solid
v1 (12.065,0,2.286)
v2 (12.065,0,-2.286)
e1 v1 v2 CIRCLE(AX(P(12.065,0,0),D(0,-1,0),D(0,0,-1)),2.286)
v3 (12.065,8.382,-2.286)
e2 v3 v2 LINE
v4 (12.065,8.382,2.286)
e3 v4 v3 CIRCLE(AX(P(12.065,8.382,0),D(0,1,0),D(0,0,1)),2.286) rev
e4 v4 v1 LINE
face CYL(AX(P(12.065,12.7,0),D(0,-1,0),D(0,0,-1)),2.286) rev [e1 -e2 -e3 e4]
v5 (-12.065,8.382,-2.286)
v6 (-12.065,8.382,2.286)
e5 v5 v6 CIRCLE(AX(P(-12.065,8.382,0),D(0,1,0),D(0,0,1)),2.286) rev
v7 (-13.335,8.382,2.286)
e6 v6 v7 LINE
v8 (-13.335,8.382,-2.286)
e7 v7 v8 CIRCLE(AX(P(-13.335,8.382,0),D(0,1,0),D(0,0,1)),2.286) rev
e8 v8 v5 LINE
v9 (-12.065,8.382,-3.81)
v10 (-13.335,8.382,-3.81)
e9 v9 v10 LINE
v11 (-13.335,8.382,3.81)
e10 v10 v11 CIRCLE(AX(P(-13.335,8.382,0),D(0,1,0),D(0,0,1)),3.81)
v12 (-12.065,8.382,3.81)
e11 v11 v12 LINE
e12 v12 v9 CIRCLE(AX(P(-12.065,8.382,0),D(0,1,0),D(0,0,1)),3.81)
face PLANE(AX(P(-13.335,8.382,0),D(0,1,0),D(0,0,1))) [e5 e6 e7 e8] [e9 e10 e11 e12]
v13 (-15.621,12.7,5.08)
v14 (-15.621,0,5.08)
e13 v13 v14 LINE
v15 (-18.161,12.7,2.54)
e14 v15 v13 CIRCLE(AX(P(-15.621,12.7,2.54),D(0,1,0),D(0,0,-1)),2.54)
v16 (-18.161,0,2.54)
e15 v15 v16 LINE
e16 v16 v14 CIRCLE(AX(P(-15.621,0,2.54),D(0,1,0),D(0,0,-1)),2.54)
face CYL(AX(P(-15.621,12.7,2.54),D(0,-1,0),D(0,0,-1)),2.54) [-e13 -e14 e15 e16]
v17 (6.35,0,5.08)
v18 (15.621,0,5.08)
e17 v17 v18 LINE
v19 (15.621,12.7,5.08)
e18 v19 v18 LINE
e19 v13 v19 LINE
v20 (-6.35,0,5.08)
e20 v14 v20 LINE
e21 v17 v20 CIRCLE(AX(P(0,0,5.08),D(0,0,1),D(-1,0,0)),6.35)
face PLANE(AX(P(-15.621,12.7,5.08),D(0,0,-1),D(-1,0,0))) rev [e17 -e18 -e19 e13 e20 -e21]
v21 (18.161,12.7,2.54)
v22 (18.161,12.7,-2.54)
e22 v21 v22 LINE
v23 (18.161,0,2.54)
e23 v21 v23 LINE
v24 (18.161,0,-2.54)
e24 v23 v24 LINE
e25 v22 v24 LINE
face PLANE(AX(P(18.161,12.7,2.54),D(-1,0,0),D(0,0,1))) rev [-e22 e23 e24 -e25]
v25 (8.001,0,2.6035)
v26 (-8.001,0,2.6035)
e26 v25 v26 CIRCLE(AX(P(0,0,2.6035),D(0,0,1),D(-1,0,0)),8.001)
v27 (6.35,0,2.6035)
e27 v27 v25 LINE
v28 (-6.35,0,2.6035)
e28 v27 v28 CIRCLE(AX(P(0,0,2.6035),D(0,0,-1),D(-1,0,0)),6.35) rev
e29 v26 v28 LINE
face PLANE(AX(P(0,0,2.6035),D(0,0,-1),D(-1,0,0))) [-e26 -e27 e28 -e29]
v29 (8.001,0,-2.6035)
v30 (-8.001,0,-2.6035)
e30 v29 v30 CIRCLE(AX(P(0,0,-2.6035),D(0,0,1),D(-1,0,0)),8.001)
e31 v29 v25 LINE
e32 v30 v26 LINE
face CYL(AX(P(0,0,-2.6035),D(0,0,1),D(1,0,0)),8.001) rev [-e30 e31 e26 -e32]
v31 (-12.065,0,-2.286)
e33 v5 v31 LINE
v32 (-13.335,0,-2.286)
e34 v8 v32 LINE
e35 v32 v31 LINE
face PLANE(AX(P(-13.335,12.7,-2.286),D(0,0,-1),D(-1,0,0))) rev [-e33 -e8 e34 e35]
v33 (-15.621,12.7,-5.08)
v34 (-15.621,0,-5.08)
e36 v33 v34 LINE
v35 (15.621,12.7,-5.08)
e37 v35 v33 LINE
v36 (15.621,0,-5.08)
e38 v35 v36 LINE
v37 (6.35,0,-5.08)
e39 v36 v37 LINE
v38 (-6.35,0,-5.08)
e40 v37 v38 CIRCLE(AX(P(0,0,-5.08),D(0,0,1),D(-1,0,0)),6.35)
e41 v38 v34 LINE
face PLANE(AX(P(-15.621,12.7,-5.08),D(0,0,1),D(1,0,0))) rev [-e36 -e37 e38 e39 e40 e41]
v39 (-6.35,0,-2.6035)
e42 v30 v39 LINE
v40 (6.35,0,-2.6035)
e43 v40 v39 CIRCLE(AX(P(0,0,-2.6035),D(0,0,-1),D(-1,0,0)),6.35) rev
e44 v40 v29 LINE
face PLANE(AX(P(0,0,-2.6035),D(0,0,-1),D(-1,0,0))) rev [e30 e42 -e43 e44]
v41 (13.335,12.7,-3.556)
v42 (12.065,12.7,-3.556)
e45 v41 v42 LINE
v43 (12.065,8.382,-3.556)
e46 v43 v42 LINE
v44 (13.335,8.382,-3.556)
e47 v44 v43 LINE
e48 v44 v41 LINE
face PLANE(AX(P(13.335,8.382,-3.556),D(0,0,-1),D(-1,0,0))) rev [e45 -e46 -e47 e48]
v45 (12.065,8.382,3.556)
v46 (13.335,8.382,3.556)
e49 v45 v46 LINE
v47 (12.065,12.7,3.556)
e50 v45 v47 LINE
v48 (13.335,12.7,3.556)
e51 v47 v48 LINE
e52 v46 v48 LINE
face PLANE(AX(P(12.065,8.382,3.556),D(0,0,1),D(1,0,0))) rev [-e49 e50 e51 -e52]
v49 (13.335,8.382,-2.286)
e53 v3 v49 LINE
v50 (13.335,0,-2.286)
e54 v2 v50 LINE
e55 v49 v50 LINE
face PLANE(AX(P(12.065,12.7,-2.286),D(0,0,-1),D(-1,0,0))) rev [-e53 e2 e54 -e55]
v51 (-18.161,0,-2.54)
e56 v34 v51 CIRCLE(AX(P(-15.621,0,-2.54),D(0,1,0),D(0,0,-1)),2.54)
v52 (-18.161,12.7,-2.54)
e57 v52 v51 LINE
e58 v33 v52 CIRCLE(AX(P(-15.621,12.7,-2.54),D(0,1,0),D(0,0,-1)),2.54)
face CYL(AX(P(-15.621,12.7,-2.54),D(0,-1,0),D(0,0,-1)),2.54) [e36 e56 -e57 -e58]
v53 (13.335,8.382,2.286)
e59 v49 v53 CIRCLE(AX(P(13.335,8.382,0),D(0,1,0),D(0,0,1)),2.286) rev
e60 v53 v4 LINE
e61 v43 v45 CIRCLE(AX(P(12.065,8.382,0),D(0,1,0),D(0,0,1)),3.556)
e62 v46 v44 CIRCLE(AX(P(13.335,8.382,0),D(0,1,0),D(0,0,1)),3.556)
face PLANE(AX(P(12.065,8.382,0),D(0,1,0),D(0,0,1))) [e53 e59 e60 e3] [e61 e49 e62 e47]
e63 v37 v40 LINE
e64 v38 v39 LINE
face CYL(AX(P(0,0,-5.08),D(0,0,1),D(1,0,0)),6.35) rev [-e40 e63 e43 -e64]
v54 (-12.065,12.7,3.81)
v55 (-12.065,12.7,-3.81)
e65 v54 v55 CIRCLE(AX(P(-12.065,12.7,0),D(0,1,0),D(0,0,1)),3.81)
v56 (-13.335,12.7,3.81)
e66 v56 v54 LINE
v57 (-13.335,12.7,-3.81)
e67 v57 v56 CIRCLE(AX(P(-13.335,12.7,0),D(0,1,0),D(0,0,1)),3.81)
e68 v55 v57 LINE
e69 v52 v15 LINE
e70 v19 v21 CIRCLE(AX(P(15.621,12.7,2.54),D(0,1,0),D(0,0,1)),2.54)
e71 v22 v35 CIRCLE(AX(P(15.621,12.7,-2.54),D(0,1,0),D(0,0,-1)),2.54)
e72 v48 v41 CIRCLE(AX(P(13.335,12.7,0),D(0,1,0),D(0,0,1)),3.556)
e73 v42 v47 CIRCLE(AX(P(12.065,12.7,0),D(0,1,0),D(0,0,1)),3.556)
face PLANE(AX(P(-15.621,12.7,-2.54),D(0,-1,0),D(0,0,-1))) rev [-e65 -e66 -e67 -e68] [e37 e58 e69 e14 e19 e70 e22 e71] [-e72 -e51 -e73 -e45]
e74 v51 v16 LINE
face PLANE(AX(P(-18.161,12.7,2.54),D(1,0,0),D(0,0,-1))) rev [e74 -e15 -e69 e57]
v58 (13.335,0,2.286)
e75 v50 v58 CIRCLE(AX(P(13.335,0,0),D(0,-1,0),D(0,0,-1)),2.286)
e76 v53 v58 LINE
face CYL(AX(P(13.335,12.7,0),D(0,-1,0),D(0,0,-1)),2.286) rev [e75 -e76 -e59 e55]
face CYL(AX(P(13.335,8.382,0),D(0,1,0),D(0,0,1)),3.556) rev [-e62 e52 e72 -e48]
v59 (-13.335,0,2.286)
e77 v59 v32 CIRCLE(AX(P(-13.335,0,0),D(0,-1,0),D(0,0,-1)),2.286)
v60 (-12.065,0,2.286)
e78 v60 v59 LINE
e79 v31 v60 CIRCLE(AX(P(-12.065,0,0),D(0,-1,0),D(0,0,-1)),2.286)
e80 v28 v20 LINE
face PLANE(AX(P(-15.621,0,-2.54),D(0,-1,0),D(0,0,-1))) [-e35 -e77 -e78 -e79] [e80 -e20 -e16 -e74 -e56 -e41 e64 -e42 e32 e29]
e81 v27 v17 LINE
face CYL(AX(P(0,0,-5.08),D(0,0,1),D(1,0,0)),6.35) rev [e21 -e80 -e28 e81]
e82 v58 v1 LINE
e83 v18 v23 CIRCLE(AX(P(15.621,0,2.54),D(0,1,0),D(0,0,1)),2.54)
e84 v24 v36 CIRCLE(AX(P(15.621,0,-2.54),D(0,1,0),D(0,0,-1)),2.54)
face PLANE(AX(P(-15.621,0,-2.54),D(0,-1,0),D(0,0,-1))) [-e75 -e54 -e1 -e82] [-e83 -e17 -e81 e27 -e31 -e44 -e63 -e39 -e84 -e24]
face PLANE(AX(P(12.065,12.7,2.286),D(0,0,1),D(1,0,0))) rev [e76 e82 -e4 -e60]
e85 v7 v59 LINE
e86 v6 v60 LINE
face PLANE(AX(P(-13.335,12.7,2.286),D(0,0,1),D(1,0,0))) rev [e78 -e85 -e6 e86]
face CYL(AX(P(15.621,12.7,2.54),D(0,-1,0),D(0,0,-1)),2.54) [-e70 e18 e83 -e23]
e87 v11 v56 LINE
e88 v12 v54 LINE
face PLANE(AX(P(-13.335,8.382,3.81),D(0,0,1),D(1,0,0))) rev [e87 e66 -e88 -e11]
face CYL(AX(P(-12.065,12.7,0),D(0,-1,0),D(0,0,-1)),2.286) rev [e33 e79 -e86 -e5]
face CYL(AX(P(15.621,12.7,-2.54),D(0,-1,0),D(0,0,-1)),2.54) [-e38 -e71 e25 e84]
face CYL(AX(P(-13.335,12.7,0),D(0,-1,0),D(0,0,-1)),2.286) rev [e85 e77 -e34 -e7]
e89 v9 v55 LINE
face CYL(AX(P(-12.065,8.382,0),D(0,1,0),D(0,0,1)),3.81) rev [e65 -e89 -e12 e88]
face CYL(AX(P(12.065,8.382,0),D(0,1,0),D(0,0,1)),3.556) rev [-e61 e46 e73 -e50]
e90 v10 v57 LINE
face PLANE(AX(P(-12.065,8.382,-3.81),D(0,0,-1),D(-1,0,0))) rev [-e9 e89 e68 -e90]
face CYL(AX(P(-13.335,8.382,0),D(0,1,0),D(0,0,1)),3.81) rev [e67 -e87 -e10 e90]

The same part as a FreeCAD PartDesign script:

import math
import FreeCAD as App
import Part
import Sketcher
Q = App.Units.Quantity

doc = App.newDocument("Part")
params = doc.addObject("Spreadsheet::Sheet", "Params")
for row, (alias, value) in enumerate([
    ("sketch1_radius", "0.1 in"),
    ("sketch1_height", "0.2 in"),
    ("sketch1_width", "1.23 in"),
    ("pad1_length", "0.5 in"),
    ("sketch2_radius", "0.25 in"),
    ("sketch3_radius", "0.315 in"),
    ("pocket2_length", "0.205 in"),
    ("sketch4_radius", "0.09 in"),
    ("sketch4_width", "0.05 in"),
    ("sketch5_radius", "0.15 in"),
    ("sketch5_radius2", "0.14 in"),
    ("sketch5_width", "0.05 in"),
    ("pocket4_length", "0.17 in"),
], start=1):
    params.set(f"A{row}", alias)
    params.set(f"B{row}", "=" + value)
    params.setAlias(f"B{row}", alias)

body = doc.addObject("PartDesign::Body", "Body")

# Sketch on XZ plane
sketch1 = doc.addObject("Sketcher::SketchObject", "Sketch")
body.addObject(sketch1)
sketch1.AttachmentSupport = (doc.XZ_Plane, [""])
sketch1.MapMode = "FlatFace"
sketch1.addGeometry(Part.LineSegment(App.Vector(-15.621, 5.08, 0), App.Vector(15.621, 5.08, 0)), False)
sketch1.addGeometry(Part.ArcOfCircle(Part.Circle(App.Vector(15.621, 2.54, 0), App.Vector(0, 0, 1), 2.54), math.radians(0), math.radians(90)), False)
sketch1.addGeometry(Part.LineSegment(App.Vector(18.161, 2.54, 0), App.Vector(18.161, -2.54, 0)), False)
sketch1.addGeometry(Part.ArcOfCircle(Part.Circle(App.Vector(15.621, -2.54, 0), App.Vector(0, 0, 1), 2.54), math.radians(-90), math.radians(0)), False)
sketch1.addGeometry(Part.LineSegment(App.Vector(15.621, -5.08, 0), App.Vector(-15.621, -5.08, 0)), False)
sketch1.addGeometry(Part.ArcOfCircle(Part.Circle(App.Vector(-15.621, -2.54, 0), App.Vector(0, 0, 1), 2.54), math.radians(-180), math.radians(-90)), False)
sketch1.addGeometry(Part.LineSegment(App.Vector(-18.161, -2.54, 0), App.Vector(-18.161, 2.54, 0)), False)
sketch1.addGeometry(Part.ArcOfCircle(Part.Circle(App.Vector(-15.621, 2.54, 0), App.Vector(0, 0, 1), 2.54), math.radians(90), math.radians(180)), False)
sketch1.addConstraint(Sketcher.Constraint("Tangent", 0, 2, 1, 2))
sketch1.addConstraint(Sketcher.Constraint("Tangent", 1, 1, 2, 1))
sketch1.addConstraint(Sketcher.Constraint("Tangent", 2, 2, 3, 2))
sketch1.addConstraint(Sketcher.Constraint("Tangent", 3, 1, 4, 1))
sketch1.addConstraint(Sketcher.Constraint("Tangent", 4, 2, 5, 2))
sketch1.addConstraint(Sketcher.Constraint("Tangent", 5, 1, 6, 1))
sketch1.addConstraint(Sketcher.Constraint("Tangent", 6, 2, 7, 2))
sketch1.addConstraint(Sketcher.Constraint("Tangent", 7, 1, 0, 1))
sketch1.addConstraint(Sketcher.Constraint("Horizontal", 0))
sketch1.addConstraint(Sketcher.Constraint("Vertical", 2))
sketch1.addConstraint(Sketcher.Constraint("Horizontal", 4))
sketch1.addConstraint(Sketcher.Constraint("Vertical", 6))
sketch1.addConstraint(Sketcher.Constraint("Equal", 1, 3))
sketch1.addConstraint(Sketcher.Constraint("Equal", 3, 5))
sketch1.addConstraint(Sketcher.Constraint("Equal", 5, 7))
sketch1.addConstraint(Sketcher.Constraint("Symmetric", 1, 3, 5, 3, -1, 1))
sketch1.addConstraint(Sketcher.Constraint("Radius", 1, Q("0.1 in")))
sketch1.addConstraint(Sketcher.Constraint("DistanceY", 2, 2, 2, 1, Q("0.2 in")))
sketch1.addConstraint(Sketcher.Constraint("DistanceX", 0, 1, 0, 2, Q("1.23 in")))
sketch1.setExpression("Constraints[16]", "Params.sketch1_radius")
sketch1.setExpression("Constraints[17]", "Params.sketch1_height")
sketch1.setExpression("Constraints[18]", "Params.sketch1_width")
pad1 = doc.addObject("PartDesign::Pad", "Pad")
body.addObject(pad1)
pad1.Profile = sketch1
pad1.setExpression("Length", "Params.pad1_length")
pad1.Reversed = True

# Sketch on XY plane
sketch2 = doc.addObject("Sketcher::SketchObject", "Sketch001")
body.addObject(sketch2)
sketch2.AttachmentSupport = (doc.XY_Plane, [""])
sketch2.MapMode = "FlatFace"
sketch2.AttachmentOffset = App.Placement(App.Vector(0, 0, 0.2 * 25.4), App.Rotation())
sketch2.addGeometry(Part.LineSegment(App.Vector(-6.35, 0, 0), App.Vector(6.35, 0, 0)), False)
sketch2.addGeometry(Part.ArcOfCircle(Part.Circle(App.Vector(0, 0, 0), App.Vector(0, 0, 1), 6.35), math.radians(0), math.radians(180)), False)
sketch2.addConstraint(Sketcher.Constraint("Coincident", 0, 1, 1, 2))
sketch2.addConstraint(Sketcher.Constraint("Coincident", 1, 1, 0, 2))
sketch2.addConstraint(Sketcher.Constraint("Horizontal", 0))
sketch2.addConstraint(Sketcher.Constraint("Coincident", 1, 3, -1, 1))
sketch2.addConstraint(Sketcher.Constraint("PointOnObject", 0, 1, -1))
sketch2.addConstraint(Sketcher.Constraint("Radius", 1, Q("0.25 in")))
sketch2.setExpression("Constraints[5]", "Params.sketch2_radius")
pocket1 = doc.addObject("PartDesign::Pocket", "Pocket")
body.addObject(pocket1)
pocket1.Profile = sketch2
pocket1.Type = "ThroughAll"

# Sketch on XY plane
sketch3 = doc.addObject("Sketcher::SketchObject", "Sketch002")
body.addObject(sketch3)
sketch3.AttachmentSupport = (doc.XY_Plane, [""])
sketch3.MapMode = "FlatFace"
sketch3.addGeometry(Part.LineSegment(App.Vector(-8.001, 0, 0), App.Vector(8.001, 0, 0)), False)
sketch3.addGeometry(Part.ArcOfCircle(Part.Circle(App.Vector(0, 0, 0), App.Vector(0, 0, 1), 8.001), math.radians(0), math.radians(180)), False)
sketch3.addConstraint(Sketcher.Constraint("Coincident", 0, 1, 1, 2))
sketch3.addConstraint(Sketcher.Constraint("Coincident", 1, 1, 0, 2))
sketch3.addConstraint(Sketcher.Constraint("Horizontal", 0))
sketch3.addConstraint(Sketcher.Constraint("Coincident", 1, 3, -1, 1))
sketch3.addConstraint(Sketcher.Constraint("PointOnObject", 0, 1, -1))
sketch3.addConstraint(Sketcher.Constraint("Radius", 1, Q("0.315 in")))
sketch3.setExpression("Constraints[5]", "Params.sketch3_radius")
pocket2 = doc.addObject("PartDesign::Pocket", "Pocket001")
body.addObject(pocket2)
pocket2.Profile = sketch3
pocket2.setExpression("Length", "Params.pocket2_length")
pocket2.Midplane = True

# Sketch on XZ plane
sketch4 = doc.addObject("Sketcher::SketchObject", "Sketch003")
body.addObject(sketch4)
sketch4.AttachmentSupport = (doc.XZ_Plane, [""])
sketch4.MapMode = "FlatFace"
sketch4.addGeometry(Part.LineSegment(App.Vector(13.335, 2.286, 0), App.Vector(12.065, 2.286, 0)), False)
sketch4.addGeometry(Part.ArcOfCircle(Part.Circle(App.Vector(12.065, 0, 0), App.Vector(0, 0, 1), 2.286), math.radians(90), math.radians(270)), False)
sketch4.addGeometry(Part.LineSegment(App.Vector(12.065, -2.286, 0), App.Vector(13.335, -2.286, 0)), False)
sketch4.addGeometry(Part.ArcOfCircle(Part.Circle(App.Vector(13.335, 0, 0), App.Vector(0, 0, 1), 2.286), math.radians(-90), math.radians(90)), False)
sketch4.addGeometry(Part.LineSegment(App.Vector(-12.065, 2.286, 0), App.Vector(-13.335, 2.286, 0)), False)
sketch4.addGeometry(Part.ArcOfCircle(Part.Circle(App.Vector(-13.335, 0, 0), App.Vector(0, 0, 1), 2.286), math.radians(90), math.radians(270)), False)
sketch4.addGeometry(Part.LineSegment(App.Vector(-13.335, -2.286, 0), App.Vector(-12.065, -2.286, 0)), False)
sketch4.addGeometry(Part.ArcOfCircle(Part.Circle(App.Vector(-12.065, 0, 0), App.Vector(0, 0, 1), 2.286), math.radians(-90), math.radians(90)), False)
sketch4.addConstraint(Sketcher.Constraint("Tangent", 0, 2, 1, 1))
sketch4.addConstraint(Sketcher.Constraint("Tangent", 1, 2, 2, 1))
sketch4.addConstraint(Sketcher.Constraint("Tangent", 2, 2, 3, 1))
sketch4.addConstraint(Sketcher.Constraint("Tangent", 3, 2, 0, 1))
sketch4.addConstraint(Sketcher.Constraint("Tangent", 4, 2, 5, 1))
sketch4.addConstraint(Sketcher.Constraint("Tangent", 5, 2, 6, 1))
sketch4.addConstraint(Sketcher.Constraint("Tangent", 6, 2, 7, 1))
sketch4.addConstraint(Sketcher.Constraint("Tangent", 7, 2, 4, 1))
sketch4.addConstraint(Sketcher.Constraint("Horizontal", 0))
sketch4.addConstraint(Sketcher.Constraint("Horizontal", 2))
sketch4.addConstraint(Sketcher.Constraint("Horizontal", 4))
sketch4.addConstraint(Sketcher.Constraint("Horizontal", 6))
sketch4.addConstraint(Sketcher.Constraint("Equal", 3, 5))
sketch4.addConstraint(Sketcher.Constraint("Symmetric", 3, 3, 5, 3, -1, 1))
sketch4.addConstraint(Sketcher.Constraint("Symmetric", 1, 3, 7, 3, -2))
sketch4.addConstraint(Sketcher.Constraint("Radius", 1, Q("0.09 in")))
sketch4.addConstraint(Sketcher.Constraint("DistanceX", 5, 3, 1, 3, Q("1 in")))
sketch4.addConstraint(Sketcher.Constraint("DistanceX", 0, 2, 0, 1, Q("0.05 in")))
sketch4.setExpression("Constraints[15]", "Params.sketch4_radius")
sketch4.setExpression("Constraints[17]", "Params.sketch4_width")
pocket3 = doc.addObject("PartDesign::Pocket", "Pocket002")
body.addObject(pocket3)
pocket3.Profile = sketch4
pocket3.Type = "ThroughAll"

# Sketch on XZ plane
sketch5 = doc.addObject("Sketcher::SketchObject", "Sketch004")
body.addObject(sketch5)
sketch5.AttachmentSupport = (doc.XZ_Plane, [""])
sketch5.MapMode = "FlatFace"
sketch5.AttachmentOffset = App.Placement(App.Vector(0, 0, -0.5 * 25.4), App.Rotation())
sketch5.addGeometry(Part.LineSegment(App.Vector(-12.065, -3.81, 0), App.Vector(-13.335, -3.81, 0)), False)
sketch5.addGeometry(Part.ArcOfCircle(Part.Circle(App.Vector(-13.335, 0, 0), App.Vector(0, 0, 1), 3.81), math.radians(90), math.radians(270)), False)
sketch5.addGeometry(Part.LineSegment(App.Vector(-13.335, 3.81, 0), App.Vector(-12.065, 3.81, 0)), False)
sketch5.addGeometry(Part.ArcOfCircle(Part.Circle(App.Vector(-12.065, 0, 0), App.Vector(0, 0, 1), 3.81), math.radians(-90), math.radians(90)), False)
sketch5.addGeometry(Part.LineSegment(App.Vector(12.065, 3.556, 0), App.Vector(13.335, 3.556, 0)), False)
sketch5.addGeometry(Part.ArcOfCircle(Part.Circle(App.Vector(13.335, 0, 0), App.Vector(0, 0, 1), 3.556), math.radians(-90), math.radians(90)), False)
sketch5.addGeometry(Part.LineSegment(App.Vector(13.335, -3.556, 0), App.Vector(12.065, -3.556, 0)), False)
sketch5.addGeometry(Part.ArcOfCircle(Part.Circle(App.Vector(12.065, 0, 0), App.Vector(0, 0, 1), 3.556), math.radians(90), math.radians(270)), False)
sketch5.addConstraint(Sketcher.Constraint("Tangent", 0, 2, 1, 2))
sketch5.addConstraint(Sketcher.Constraint("Tangent", 1, 1, 2, 1))
sketch5.addConstraint(Sketcher.Constraint("Tangent", 2, 2, 3, 2))
sketch5.addConstraint(Sketcher.Constraint("Tangent", 3, 1, 0, 1))
sketch5.addConstraint(Sketcher.Constraint("Tangent", 4, 2, 5, 2))
sketch5.addConstraint(Sketcher.Constraint("Tangent", 5, 1, 6, 1))
sketch5.addConstraint(Sketcher.Constraint("Tangent", 6, 2, 7, 2))
sketch5.addConstraint(Sketcher.Constraint("Tangent", 7, 1, 4, 1))
sketch5.addConstraint(Sketcher.Constraint("Horizontal", 0))
sketch5.addConstraint(Sketcher.Constraint("Horizontal", 2))
sketch5.addConstraint(Sketcher.Constraint("Horizontal", 4))
sketch5.addConstraint(Sketcher.Constraint("Horizontal", 6))
sketch5.addConstraint(Sketcher.Constraint("Symmetric", 1, 3, 5, 3, -1, 1))
sketch5.addConstraint(Sketcher.Constraint("Symmetric", 3, 3, 7, 3, -2))
sketch5.addConstraint(Sketcher.Constraint("Radius", 1, Q("0.15 in")))
sketch5.addConstraint(Sketcher.Constraint("Radius", 5, Q("0.14 in")))
sketch5.addConstraint(Sketcher.Constraint("DistanceX", 3, 3, 5, 3, Q("1 in")))
sketch5.addConstraint(Sketcher.Constraint("DistanceX", 0, 2, 0, 1, Q("0.05 in")))
sketch5.setExpression("Constraints[14]", "Params.sketch5_radius")
sketch5.setExpression("Constraints[15]", "Params.sketch5_radius2")
sketch5.setExpression("Constraints[17]", "Params.sketch5_width")
pocket4 = doc.addObject("PartDesign::Pocket", "Pocket003")
body.addObject(pocket4)
pocket4.Profile = sketch5
pocket4.setExpression("Length", "Params.pocket4_length")
pocket4.Reversed = True

doc.recompute()
